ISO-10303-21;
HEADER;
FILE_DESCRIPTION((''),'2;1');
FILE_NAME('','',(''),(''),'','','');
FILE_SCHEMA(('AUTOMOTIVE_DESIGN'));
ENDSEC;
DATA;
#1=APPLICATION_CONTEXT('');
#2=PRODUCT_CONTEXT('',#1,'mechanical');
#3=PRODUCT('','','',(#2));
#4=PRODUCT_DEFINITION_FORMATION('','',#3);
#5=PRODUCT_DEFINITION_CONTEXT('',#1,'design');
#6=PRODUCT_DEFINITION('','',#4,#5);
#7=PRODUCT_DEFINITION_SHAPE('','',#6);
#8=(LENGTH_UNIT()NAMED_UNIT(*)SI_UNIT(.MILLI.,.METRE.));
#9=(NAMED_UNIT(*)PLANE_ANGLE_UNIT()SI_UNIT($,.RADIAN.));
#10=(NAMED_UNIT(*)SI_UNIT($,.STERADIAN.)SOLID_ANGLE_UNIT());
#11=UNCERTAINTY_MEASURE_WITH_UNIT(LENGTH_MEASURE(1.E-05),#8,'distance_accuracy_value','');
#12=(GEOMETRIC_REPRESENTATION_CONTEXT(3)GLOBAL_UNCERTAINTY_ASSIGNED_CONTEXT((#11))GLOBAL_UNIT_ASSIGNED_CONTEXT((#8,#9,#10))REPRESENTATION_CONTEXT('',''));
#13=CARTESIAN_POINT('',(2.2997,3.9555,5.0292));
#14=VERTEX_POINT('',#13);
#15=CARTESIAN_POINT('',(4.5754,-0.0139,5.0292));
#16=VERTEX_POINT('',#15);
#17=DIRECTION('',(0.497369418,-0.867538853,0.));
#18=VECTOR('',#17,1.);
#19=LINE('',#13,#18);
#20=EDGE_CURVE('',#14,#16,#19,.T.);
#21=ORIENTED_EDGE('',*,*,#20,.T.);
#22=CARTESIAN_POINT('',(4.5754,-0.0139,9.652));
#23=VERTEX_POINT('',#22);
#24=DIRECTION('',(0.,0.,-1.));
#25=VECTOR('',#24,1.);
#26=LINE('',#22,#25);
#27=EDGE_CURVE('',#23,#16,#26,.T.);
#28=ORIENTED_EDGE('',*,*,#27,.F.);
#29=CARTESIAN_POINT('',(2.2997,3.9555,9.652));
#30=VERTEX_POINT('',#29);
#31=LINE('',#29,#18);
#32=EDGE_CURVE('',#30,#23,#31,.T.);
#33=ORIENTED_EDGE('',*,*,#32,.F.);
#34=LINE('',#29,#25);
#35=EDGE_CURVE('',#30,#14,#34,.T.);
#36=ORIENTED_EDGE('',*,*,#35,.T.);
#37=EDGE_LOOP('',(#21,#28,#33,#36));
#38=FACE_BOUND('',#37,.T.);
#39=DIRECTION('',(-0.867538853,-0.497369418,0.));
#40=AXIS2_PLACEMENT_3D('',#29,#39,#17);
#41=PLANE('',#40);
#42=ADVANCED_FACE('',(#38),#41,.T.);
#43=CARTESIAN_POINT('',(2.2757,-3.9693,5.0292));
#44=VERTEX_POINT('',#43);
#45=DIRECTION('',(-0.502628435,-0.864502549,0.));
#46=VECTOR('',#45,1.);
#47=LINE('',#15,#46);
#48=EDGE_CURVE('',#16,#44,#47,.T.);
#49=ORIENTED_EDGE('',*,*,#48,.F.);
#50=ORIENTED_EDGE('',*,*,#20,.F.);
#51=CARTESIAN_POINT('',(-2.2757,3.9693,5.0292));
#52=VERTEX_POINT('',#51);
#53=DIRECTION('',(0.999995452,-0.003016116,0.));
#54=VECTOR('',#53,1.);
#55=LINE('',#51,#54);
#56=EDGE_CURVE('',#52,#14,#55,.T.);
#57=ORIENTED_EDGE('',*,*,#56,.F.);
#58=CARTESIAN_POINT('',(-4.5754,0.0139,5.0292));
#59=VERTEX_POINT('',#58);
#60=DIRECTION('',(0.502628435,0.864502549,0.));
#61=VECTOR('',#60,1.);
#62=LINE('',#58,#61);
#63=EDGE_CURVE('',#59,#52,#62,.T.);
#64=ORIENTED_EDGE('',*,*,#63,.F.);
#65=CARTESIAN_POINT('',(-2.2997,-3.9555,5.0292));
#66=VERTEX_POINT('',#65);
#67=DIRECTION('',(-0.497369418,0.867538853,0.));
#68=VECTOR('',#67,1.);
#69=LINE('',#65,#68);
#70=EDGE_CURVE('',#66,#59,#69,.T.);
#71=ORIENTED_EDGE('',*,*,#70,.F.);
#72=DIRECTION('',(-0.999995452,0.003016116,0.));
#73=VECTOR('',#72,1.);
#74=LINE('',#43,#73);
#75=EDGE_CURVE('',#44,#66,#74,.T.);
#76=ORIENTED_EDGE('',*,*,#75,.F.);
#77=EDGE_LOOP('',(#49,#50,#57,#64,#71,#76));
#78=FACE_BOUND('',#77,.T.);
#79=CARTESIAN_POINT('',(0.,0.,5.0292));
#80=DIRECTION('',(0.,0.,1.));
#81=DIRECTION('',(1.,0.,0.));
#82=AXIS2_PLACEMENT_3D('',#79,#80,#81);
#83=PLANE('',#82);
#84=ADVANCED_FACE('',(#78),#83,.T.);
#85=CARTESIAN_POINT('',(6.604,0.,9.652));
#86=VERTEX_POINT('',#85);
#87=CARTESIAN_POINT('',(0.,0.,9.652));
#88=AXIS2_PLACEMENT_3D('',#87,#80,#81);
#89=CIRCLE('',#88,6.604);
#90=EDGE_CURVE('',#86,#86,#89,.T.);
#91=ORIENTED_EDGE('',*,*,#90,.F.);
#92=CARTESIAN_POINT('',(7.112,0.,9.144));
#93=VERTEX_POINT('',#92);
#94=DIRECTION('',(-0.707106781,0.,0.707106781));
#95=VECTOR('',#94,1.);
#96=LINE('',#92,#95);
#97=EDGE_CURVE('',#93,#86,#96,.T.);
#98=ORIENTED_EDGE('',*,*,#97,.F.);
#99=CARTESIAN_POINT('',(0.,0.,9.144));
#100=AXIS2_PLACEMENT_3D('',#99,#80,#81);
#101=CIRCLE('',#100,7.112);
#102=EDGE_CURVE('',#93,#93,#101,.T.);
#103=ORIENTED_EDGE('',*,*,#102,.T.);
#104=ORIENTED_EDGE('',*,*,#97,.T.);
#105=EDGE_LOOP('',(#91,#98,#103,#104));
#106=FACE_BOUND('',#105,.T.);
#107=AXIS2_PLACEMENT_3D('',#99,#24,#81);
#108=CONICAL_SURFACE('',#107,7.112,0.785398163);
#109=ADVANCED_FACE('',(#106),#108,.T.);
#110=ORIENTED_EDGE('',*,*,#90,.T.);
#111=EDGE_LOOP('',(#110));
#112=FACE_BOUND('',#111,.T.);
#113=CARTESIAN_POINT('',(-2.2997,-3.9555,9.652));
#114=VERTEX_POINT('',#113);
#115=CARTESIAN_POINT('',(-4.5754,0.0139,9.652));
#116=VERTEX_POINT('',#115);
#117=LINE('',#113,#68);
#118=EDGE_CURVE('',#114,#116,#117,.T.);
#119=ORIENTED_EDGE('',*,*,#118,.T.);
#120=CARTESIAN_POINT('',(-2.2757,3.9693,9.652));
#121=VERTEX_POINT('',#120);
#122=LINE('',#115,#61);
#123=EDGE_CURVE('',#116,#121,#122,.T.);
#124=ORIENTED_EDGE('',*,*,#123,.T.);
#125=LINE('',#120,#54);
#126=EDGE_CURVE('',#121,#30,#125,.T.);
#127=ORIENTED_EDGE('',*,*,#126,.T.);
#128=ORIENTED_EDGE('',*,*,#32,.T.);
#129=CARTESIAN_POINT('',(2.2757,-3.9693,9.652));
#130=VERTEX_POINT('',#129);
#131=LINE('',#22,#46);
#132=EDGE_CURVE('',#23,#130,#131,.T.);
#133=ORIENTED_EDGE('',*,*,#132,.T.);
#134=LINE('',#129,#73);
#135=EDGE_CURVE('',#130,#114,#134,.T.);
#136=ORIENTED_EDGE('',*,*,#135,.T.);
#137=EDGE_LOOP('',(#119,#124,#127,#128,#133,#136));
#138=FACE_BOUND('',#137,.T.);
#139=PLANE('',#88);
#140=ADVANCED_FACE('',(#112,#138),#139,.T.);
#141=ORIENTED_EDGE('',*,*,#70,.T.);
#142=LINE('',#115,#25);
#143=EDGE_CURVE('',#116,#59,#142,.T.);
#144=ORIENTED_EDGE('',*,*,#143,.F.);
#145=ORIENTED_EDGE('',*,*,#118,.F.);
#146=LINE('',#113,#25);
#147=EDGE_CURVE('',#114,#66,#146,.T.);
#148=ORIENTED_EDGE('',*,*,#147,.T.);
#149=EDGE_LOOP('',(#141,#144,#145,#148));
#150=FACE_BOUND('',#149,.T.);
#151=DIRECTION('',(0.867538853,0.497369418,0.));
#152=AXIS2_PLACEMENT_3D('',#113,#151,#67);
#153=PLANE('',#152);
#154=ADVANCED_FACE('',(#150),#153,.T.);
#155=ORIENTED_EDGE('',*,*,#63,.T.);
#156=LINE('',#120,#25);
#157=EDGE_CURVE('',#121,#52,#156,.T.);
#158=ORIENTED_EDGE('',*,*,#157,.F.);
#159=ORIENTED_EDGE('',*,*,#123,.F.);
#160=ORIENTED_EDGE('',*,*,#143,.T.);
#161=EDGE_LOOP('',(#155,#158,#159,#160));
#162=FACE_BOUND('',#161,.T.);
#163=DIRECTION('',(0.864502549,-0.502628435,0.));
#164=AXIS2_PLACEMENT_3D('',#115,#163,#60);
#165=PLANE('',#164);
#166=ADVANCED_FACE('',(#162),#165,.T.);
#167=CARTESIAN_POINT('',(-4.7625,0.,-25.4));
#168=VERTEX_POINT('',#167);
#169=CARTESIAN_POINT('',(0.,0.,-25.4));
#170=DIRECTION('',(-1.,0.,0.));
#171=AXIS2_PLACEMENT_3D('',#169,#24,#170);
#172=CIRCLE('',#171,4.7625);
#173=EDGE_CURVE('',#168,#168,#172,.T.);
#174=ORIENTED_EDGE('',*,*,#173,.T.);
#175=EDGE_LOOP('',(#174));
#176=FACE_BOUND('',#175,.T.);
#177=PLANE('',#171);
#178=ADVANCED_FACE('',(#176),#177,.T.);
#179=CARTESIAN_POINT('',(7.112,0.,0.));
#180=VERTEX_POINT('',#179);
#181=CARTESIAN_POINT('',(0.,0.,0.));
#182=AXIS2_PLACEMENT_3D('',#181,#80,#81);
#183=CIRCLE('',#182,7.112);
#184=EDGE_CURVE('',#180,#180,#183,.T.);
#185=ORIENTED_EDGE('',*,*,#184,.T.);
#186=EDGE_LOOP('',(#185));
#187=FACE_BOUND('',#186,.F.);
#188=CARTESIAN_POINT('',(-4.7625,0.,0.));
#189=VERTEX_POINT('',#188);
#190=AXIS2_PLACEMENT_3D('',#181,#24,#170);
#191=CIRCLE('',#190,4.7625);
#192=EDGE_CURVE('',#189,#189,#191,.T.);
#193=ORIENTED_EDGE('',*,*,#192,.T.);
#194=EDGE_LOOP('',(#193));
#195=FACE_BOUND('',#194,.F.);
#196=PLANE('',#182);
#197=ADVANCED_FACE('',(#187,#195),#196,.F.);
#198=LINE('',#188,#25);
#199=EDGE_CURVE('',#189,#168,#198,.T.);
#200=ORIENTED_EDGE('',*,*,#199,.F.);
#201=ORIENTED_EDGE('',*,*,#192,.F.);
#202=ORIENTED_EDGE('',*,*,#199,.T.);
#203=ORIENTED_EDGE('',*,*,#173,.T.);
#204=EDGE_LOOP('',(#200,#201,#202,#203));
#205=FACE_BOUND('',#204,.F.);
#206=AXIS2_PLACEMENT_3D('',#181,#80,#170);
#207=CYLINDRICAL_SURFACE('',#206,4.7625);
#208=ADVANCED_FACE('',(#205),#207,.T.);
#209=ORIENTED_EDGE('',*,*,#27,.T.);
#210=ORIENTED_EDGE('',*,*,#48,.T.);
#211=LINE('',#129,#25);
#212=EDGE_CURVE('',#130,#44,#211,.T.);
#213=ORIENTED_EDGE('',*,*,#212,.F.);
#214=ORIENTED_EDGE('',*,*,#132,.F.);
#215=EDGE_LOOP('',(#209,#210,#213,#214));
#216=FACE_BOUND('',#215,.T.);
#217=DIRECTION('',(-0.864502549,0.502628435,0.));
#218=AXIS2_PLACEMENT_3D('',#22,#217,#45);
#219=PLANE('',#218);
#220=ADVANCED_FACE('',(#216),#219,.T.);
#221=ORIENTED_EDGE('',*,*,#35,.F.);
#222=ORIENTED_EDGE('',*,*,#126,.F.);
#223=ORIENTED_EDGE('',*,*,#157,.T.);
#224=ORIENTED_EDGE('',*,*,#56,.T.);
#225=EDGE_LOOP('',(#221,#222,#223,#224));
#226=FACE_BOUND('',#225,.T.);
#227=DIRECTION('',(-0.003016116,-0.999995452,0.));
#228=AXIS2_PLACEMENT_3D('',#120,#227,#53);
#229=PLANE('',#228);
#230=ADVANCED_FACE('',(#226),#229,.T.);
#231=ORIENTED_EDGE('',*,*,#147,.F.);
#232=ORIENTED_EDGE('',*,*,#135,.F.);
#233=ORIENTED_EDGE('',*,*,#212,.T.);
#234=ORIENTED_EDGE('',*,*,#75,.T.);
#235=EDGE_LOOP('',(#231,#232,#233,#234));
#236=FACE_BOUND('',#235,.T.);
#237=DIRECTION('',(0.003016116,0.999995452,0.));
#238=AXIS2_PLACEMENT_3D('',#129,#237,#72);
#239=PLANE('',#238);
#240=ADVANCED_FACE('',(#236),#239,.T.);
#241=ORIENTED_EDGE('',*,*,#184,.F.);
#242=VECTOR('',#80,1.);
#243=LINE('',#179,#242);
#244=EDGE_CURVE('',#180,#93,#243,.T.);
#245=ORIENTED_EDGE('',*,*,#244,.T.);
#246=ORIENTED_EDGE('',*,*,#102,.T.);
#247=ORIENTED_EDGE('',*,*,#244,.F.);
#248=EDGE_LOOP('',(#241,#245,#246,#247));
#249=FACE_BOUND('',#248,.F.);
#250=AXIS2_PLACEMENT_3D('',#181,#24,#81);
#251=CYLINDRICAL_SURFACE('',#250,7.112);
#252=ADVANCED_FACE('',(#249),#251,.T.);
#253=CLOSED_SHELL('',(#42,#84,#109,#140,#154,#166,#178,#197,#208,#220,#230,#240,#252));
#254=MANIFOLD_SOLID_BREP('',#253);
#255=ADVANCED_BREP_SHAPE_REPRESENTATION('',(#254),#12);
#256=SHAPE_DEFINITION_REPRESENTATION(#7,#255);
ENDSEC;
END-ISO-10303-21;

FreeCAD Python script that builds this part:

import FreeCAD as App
import Part
import Sketcher
from FreeCAD import Vector
Q = App.Units.Quantity


def edges_at(feature, points):
    """Names of the edges that pass closest to the given points."""
    edges = feature.Shape.Edges
    near = lambda p: min(range(len(edges)), key=lambda i: edges[i].distToShape(Part.Vertex(*p))[0])
    return sorted({f"Edge{near(p) + 1}" for p in points})

doc = App.newDocument("Part")
body = doc.addObject("PartDesign::Body", "Body")

sketch1 = body.newObject("Sketcher::SketchObject", "Sketch")
sketch1.AttachmentSupport = (doc.getObject("XY_Plane"), [""])
sketch1.MapMode = "FlatFace"
sketch1.addGeometry(Part.Circle(Vector(0, 0, 0), Vector(0, 0, 1), 7), False)
sketch1.addConstraint([
    Sketcher.Constraint("Coincident", 0, 3, -1, 1),
    Sketcher.Constraint("Diameter", 0, Q("0.56 in")),
])
pad1 = body.newObject("PartDesign::Pad", "Pad")
pad1.Profile = sketch1
pad1.Length = Q("0.38 in")

sketch2 = body.newObject("Sketcher::SketchObject", "Sketch001")
sketch2.AttachmentSupport = (doc.getObject("XY_Plane"), [""])
sketch2.MapMode = "FlatFace"
sketch2.AttachmentOffset = App.Placement(Vector(0, 0, 0.38 * 25.4), App.Rotation())
sketch2.addGeometry([
    Part.LineSegment(Vector(4.6, 0, 0), Vector(2.3, 4, 0)),
    Part.LineSegment(Vector(2.3, 4, 0), Vector(-2.3, 4, 0)),
    Part.LineSegment(Vector(-2.3, 4, 0), Vector(-4.6, 0, 0)),
    Part.LineSegment(Vector(-4.6, 0, 0), Vector(-2.3, -4, 0)),
    Part.LineSegment(Vector(-2.3, -4, 0), Vector(2.3, -4, 0)),
    Part.LineSegment(Vector(2.3, -4, 0), Vector(4.6, 0, 0)),
], False)
sketch2.addConstraint([
    Sketcher.Constraint("Coincident", 0, 2, 1, 1),
    Sketcher.Constraint("Coincident", 1, 2, 2, 1),
    Sketcher.Constraint("Coincident", 2, 2, 3, 1),
    Sketcher.Constraint("Coincident", 3, 2, 4, 1),
    Sketcher.Constraint("Coincident", 4, 2, 5, 1),
    Sketcher.Constraint("Coincident", 5, 2, 0, 1),
    Sketcher.Constraint("Symmetric", 0, 2, 3, 2, -1, 1),
    Sketcher.Constraint("Symmetric", 1, 2, 4, 2, -1, 1),
    Sketcher.Constraint("Symmetric", 2, 2, 5, 2, -1, 1),
    Sketcher.Constraint("Equal", 0, 1),
    Sketcher.Constraint("Equal", 1, 2),
    Sketcher.Constraint("DistanceY", 3, 2, 1, 2, Q("0.312 in")),
    Sketcher.Constraint("DistanceX", 1, 2, -1, 1, Q("0.0896 in")),
    Sketcher.Constraint("DistanceX", 2, 2, 3, 2, Q("0.0896 in")),
    Sketcher.Constraint("DistanceY", 5, 2, 2, 2, Q("0.0011 in")),
])
pocket1 = body.newObject("PartDesign::Pocket", "Pocket")
pocket1.Profile = sketch2
pocket1.Length = Q("0.182 in")
doc.recompute()

chamfer = body.newObject("PartDesign::Chamfer", "Chamfer")
chamfer.Base = (pocket1, edges_at(pocket1, [(-7.112, 0, 9.652)]))
chamfer.Size = Q("0.02 in")

sketch3 = body.newObject("Sketcher::SketchObject", "Sketch002")
sketch3.AttachmentSupport = (doc.getObject("XY_Plane"), [""])
sketch3.MapMode = "FlatFace"
sketch3.addGeometry(Part.Circle(Vector(0, 0, 0), Vector(0, 0, 1), 4.8), False)
sketch3.addConstraint([
    Sketcher.Constraint("Coincident", 0, 3, -1, 1),
    Sketcher.Constraint("Diameter", 0, Q("0.375 in")),
])
pad2 = body.newObject("PartDesign::Pad", "Pad001")
pad2.Profile = sketch3
pad2.Length = Q("1 in")
pad2.Reversed = True

doc.recompute()
